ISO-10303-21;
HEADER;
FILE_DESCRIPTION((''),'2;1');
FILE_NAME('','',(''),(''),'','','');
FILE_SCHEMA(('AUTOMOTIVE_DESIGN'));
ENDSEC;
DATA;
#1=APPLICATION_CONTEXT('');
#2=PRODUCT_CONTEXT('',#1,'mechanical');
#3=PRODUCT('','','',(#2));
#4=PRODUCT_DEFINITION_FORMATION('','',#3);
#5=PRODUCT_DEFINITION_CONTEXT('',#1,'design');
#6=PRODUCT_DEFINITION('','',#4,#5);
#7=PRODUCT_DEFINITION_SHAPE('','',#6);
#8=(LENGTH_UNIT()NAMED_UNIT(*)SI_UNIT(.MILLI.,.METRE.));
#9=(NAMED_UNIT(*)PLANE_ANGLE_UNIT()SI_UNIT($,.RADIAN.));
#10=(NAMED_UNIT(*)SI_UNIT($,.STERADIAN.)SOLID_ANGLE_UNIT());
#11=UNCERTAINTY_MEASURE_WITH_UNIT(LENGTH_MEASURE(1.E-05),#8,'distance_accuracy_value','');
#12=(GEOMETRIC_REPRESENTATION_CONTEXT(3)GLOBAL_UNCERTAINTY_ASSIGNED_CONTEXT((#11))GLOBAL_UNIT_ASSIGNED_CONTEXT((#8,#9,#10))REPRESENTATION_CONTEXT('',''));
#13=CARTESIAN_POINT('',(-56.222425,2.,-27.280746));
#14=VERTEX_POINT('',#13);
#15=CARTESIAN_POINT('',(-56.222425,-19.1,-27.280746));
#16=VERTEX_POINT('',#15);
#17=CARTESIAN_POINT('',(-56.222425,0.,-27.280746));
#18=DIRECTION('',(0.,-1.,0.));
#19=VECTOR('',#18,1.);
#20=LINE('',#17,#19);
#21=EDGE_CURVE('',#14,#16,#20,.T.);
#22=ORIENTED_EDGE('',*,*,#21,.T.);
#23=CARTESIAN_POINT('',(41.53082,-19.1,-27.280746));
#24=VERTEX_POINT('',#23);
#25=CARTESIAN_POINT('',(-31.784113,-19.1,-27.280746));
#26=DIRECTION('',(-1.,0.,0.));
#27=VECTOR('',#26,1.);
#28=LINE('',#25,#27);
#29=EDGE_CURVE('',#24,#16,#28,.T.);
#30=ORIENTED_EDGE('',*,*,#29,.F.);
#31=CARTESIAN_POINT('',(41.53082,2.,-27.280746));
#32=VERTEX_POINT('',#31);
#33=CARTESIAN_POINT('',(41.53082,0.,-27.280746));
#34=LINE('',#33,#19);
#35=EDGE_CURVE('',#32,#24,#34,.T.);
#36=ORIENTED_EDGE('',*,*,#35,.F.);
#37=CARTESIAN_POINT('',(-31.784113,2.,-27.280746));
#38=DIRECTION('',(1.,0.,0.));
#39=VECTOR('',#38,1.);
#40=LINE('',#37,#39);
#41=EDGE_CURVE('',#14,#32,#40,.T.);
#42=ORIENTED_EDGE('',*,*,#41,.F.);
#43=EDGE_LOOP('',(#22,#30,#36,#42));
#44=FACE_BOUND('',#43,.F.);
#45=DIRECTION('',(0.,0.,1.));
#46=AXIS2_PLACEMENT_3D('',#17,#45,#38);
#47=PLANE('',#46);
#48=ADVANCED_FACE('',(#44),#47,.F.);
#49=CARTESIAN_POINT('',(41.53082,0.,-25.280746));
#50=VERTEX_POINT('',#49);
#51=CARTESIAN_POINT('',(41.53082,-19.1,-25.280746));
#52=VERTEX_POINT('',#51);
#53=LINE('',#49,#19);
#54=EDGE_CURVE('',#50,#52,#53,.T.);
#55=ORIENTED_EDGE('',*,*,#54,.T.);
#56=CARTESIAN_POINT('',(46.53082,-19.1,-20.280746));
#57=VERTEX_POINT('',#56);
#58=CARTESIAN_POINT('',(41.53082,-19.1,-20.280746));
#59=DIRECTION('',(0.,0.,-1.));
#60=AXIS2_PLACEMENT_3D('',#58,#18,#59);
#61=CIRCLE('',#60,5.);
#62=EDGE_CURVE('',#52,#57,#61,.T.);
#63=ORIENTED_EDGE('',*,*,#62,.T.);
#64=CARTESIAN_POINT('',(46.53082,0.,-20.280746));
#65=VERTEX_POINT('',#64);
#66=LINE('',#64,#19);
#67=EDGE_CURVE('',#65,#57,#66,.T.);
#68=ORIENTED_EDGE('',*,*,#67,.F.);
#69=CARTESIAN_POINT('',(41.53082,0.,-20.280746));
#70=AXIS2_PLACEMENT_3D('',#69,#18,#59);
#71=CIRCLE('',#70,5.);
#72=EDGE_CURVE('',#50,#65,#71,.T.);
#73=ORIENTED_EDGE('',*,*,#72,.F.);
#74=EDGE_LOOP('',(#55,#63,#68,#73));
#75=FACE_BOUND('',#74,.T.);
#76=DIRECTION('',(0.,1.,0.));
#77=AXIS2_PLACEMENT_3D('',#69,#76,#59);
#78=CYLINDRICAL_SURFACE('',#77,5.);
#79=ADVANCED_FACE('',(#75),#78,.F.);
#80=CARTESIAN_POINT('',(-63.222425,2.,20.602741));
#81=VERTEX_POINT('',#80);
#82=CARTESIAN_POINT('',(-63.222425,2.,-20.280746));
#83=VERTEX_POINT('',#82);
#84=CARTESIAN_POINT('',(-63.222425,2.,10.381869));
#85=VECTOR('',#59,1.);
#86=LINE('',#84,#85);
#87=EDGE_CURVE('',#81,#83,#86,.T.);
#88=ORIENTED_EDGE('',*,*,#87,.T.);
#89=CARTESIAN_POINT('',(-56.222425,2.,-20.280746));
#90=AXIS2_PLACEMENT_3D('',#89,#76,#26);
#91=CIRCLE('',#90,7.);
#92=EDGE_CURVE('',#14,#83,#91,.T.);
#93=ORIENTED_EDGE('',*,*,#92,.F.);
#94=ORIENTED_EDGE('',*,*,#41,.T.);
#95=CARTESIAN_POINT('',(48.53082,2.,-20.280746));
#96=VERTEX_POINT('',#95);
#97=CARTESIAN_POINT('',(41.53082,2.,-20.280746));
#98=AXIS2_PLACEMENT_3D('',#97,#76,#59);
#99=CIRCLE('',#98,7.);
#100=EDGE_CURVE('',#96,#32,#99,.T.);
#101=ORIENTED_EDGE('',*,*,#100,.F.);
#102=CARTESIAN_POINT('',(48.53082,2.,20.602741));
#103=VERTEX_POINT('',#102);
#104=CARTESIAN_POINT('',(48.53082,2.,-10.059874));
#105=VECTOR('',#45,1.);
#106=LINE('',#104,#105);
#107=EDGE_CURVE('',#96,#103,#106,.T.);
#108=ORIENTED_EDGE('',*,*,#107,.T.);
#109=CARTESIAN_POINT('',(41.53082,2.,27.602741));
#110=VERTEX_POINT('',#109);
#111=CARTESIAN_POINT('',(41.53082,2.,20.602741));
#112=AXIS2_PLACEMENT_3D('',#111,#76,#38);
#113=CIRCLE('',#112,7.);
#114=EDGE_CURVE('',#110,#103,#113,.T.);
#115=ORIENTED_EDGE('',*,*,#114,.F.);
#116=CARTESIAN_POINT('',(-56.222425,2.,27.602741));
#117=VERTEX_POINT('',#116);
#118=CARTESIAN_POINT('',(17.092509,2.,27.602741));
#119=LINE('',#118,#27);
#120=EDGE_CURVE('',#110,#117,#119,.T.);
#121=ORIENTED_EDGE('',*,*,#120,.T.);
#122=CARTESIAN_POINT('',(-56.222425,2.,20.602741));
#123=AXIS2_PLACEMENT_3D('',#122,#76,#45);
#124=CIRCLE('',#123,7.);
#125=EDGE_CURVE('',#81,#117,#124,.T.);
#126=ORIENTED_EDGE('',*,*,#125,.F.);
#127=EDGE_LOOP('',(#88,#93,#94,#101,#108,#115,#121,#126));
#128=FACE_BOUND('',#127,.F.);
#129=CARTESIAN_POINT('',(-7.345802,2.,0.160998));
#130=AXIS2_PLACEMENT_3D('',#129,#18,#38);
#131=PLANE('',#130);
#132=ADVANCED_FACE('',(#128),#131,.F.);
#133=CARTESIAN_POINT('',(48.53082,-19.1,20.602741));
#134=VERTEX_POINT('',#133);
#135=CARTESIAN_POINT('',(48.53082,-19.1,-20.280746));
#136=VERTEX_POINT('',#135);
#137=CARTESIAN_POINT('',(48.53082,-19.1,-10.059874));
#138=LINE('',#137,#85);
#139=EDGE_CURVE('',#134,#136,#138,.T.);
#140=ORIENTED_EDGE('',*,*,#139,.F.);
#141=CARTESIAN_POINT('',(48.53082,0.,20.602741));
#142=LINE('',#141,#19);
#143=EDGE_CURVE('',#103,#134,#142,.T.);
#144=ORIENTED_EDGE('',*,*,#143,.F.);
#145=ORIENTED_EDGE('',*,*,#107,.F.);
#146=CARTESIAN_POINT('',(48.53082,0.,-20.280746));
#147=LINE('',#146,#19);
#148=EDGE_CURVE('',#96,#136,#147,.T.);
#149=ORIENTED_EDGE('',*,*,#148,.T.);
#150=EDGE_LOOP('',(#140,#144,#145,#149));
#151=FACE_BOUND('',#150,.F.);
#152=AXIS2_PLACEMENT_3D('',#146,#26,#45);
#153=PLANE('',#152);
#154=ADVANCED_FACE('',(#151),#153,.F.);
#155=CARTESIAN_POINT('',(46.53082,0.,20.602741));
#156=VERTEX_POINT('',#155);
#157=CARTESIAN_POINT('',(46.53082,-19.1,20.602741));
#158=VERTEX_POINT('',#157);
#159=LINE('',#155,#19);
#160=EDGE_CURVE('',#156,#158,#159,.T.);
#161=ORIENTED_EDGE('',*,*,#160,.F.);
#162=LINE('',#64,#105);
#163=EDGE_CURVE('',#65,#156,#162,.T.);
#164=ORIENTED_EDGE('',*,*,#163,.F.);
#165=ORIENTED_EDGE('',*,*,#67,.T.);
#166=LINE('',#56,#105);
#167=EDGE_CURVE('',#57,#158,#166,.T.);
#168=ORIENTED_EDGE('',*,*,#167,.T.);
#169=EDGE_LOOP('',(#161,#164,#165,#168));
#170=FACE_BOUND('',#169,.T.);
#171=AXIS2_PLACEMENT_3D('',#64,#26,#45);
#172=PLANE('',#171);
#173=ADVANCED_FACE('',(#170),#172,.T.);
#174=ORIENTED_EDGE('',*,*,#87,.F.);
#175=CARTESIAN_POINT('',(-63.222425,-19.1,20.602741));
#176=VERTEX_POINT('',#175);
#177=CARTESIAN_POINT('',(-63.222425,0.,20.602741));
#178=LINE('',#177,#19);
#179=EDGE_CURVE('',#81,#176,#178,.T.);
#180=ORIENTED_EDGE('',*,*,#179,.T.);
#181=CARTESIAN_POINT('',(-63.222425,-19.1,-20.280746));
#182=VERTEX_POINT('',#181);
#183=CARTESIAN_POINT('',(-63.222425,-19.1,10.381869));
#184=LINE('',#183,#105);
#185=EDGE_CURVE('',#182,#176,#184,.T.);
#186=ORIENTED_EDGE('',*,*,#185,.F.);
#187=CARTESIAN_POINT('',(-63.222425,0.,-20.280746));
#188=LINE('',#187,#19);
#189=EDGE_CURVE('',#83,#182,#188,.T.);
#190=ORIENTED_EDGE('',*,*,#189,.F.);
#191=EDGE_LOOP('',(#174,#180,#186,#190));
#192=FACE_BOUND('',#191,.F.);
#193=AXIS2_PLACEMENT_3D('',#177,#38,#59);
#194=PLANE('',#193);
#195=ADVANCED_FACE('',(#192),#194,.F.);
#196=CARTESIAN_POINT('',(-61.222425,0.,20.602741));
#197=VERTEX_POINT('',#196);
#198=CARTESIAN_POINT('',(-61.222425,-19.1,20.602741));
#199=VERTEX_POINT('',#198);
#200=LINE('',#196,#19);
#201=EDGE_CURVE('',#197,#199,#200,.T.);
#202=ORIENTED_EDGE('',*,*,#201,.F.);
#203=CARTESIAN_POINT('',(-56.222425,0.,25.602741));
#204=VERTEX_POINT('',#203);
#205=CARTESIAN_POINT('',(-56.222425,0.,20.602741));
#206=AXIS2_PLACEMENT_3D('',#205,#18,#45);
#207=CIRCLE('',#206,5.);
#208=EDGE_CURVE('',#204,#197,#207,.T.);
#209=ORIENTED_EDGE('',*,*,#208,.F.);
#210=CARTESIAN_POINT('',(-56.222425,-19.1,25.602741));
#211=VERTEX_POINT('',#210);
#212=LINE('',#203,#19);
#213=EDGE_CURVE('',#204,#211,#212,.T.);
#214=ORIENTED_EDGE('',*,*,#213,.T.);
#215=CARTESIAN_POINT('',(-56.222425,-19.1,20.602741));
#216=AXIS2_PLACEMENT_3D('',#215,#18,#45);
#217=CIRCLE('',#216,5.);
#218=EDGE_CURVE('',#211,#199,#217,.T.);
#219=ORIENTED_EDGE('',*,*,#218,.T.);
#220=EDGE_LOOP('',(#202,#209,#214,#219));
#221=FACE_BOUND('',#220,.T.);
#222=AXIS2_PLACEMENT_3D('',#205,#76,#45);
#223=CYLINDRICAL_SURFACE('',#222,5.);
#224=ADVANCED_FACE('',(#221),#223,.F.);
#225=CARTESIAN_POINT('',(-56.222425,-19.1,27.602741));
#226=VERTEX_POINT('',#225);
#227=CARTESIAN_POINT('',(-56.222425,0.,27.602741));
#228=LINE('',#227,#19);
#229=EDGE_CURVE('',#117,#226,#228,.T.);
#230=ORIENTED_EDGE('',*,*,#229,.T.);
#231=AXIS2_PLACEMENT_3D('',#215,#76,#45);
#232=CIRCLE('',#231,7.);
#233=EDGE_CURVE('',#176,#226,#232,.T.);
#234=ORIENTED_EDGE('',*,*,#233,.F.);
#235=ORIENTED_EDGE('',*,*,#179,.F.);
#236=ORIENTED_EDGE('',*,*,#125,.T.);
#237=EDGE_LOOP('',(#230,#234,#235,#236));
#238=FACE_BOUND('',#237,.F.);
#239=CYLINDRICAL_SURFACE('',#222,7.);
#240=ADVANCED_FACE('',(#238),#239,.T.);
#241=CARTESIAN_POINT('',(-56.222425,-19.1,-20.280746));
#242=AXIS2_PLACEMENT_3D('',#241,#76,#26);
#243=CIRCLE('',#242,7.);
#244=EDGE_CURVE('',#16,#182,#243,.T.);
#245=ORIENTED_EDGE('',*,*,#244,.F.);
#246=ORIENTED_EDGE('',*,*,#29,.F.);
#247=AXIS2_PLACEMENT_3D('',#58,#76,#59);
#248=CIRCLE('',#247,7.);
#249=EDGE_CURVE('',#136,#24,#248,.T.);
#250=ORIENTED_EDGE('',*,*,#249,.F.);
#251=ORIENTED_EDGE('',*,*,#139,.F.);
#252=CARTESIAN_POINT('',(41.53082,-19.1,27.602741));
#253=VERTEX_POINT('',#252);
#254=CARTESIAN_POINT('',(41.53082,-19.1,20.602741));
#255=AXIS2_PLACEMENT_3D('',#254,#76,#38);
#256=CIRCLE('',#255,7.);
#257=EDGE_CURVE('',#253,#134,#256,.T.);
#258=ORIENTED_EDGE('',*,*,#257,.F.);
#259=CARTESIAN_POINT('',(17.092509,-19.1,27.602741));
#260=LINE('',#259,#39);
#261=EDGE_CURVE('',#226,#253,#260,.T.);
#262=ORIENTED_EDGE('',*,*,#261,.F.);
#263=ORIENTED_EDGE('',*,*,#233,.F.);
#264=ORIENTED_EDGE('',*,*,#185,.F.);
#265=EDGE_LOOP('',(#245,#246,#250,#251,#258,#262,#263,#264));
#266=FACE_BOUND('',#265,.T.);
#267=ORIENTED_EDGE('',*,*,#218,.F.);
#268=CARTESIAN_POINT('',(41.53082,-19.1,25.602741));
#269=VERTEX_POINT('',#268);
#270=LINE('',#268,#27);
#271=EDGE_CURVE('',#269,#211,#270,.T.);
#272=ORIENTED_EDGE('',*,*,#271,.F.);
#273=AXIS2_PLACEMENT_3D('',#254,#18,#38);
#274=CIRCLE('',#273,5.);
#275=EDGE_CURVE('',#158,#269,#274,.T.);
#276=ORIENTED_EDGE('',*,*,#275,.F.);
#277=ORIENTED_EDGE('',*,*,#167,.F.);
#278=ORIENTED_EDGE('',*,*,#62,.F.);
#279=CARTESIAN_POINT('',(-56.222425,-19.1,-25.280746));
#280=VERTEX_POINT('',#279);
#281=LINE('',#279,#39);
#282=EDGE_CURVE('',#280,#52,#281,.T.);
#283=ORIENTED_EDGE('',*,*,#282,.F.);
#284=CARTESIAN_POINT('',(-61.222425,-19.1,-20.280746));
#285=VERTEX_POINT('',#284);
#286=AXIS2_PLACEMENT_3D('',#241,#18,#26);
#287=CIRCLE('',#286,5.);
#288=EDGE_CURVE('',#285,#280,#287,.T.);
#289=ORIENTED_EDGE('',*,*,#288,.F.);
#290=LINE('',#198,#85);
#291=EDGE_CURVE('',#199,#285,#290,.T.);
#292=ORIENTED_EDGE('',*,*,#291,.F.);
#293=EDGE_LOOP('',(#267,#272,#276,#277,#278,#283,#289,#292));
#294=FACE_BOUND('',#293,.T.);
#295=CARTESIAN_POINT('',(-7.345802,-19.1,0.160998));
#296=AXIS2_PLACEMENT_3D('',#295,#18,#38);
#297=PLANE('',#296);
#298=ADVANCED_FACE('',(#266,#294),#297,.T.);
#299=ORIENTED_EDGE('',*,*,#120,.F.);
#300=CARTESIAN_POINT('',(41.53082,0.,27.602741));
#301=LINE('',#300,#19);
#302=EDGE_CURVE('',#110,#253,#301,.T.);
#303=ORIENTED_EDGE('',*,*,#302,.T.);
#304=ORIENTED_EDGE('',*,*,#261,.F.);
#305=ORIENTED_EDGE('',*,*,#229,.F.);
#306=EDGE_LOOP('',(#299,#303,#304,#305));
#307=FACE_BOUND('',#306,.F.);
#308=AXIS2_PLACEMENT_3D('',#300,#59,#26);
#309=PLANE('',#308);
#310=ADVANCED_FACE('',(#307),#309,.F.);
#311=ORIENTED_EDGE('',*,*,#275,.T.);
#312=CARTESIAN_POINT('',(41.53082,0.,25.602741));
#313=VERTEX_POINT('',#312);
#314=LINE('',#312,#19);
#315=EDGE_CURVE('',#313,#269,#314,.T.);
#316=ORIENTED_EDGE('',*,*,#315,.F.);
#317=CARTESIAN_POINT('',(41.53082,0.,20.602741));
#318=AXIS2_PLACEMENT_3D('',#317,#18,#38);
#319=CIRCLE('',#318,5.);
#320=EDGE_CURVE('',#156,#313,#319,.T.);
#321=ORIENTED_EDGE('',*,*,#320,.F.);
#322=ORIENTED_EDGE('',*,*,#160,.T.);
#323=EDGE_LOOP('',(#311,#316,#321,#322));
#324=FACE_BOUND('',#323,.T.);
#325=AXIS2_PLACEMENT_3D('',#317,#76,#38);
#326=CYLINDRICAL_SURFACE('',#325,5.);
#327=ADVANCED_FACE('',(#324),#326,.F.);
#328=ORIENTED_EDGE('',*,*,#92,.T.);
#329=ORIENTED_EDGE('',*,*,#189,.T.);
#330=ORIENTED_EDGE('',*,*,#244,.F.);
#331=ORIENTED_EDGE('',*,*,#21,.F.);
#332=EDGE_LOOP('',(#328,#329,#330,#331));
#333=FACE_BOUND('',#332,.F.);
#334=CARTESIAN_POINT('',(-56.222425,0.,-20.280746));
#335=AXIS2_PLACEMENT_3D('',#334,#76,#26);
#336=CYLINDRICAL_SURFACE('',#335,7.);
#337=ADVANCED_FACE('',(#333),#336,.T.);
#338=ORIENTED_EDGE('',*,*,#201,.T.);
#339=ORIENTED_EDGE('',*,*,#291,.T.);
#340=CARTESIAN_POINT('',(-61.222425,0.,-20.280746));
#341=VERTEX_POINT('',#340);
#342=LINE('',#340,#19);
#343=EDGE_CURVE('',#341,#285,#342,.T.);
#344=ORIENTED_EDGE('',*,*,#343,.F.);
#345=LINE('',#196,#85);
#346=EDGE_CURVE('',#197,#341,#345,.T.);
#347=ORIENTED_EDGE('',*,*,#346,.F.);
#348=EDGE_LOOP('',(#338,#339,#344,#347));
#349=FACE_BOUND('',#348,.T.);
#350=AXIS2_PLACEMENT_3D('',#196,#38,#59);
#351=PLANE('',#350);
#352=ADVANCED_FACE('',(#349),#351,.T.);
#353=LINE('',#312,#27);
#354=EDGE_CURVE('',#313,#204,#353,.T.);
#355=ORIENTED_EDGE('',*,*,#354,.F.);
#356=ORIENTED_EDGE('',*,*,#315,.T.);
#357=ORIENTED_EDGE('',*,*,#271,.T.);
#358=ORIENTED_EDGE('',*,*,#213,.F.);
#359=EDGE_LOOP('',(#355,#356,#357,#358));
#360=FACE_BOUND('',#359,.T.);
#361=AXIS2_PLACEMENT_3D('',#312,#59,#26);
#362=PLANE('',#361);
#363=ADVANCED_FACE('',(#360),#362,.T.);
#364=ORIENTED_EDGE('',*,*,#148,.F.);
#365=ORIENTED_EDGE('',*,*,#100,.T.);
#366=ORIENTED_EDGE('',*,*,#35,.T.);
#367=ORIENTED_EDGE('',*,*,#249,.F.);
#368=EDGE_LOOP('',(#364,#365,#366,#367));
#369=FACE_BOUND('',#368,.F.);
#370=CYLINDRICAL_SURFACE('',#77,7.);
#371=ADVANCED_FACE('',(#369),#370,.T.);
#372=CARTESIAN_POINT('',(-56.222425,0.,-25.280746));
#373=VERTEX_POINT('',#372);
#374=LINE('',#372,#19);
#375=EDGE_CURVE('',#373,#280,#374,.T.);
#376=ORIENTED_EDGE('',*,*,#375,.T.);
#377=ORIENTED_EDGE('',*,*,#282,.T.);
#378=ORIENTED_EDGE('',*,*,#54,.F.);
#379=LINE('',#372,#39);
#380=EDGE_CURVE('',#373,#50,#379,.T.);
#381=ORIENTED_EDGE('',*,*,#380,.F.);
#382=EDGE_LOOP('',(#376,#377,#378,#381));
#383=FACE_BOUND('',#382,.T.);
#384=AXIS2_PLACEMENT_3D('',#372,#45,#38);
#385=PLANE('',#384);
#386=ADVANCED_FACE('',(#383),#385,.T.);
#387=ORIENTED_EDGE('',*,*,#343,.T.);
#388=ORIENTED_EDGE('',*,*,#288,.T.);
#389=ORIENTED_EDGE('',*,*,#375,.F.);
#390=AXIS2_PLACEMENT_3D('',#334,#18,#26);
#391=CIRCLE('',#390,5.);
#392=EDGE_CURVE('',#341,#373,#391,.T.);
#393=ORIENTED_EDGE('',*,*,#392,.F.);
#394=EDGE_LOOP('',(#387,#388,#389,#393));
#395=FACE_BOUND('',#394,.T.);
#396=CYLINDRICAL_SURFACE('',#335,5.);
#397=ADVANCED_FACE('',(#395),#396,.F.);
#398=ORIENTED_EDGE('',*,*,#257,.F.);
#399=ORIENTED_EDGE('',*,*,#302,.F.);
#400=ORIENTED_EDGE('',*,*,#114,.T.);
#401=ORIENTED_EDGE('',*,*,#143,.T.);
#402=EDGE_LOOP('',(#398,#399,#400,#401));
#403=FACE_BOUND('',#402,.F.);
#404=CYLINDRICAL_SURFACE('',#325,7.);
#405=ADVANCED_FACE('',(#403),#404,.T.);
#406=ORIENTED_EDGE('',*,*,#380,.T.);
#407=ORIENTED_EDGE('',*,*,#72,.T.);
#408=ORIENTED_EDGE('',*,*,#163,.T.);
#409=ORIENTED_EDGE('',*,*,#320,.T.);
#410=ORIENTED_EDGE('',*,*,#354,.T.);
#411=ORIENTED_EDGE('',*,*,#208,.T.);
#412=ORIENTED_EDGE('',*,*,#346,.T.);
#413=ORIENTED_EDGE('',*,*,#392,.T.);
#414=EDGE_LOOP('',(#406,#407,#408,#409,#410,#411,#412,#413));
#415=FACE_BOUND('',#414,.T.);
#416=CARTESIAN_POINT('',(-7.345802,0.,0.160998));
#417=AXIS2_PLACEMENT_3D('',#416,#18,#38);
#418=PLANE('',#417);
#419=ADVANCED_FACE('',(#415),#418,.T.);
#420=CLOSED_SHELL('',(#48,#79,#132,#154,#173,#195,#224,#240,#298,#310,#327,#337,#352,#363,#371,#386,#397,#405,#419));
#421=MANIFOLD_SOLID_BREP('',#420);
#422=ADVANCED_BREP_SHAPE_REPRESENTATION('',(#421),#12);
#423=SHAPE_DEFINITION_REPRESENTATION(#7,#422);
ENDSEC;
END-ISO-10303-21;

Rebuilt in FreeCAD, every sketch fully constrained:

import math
import FreeCAD as App
import Part
import Sketcher


def faces_at(feature, points):
    """Names of the faces that lie closest to the given points."""
    faces = feature.Shape.Faces
    near = lambda p: min(range(len(faces)), key=lambda i: faces[i].distToShape(Part.Vertex(*p))[0])
    return sorted({f"Face{near(p) + 1}" for p in points})

doc = App.newDocument("Part")
body = doc.addObject("PartDesign::Body", "Body")

# Sketch on XZ plane
sketch1 = body.newObject("Sketcher::SketchObject", "Sketch")
sketch1.AttachmentSupport = (doc.getObject("XZ_Plane"), [""])
sketch1.MapMode = "FlatFace"
sketch1.addGeometry([
    Part.LineSegment(App.Vector(41.53082, 25.602741, 0), App.Vector(-56.222425, 25.602741, 0)),  # 0
    Part.ArcOfCircle(Part.Circle(App.Vector(-56.222425, 20.602741, 0), App.Vector(0, 0, 1), 5), math.radians(90), math.radians(180)),  # 1
    Part.LineSegment(App.Vector(-61.222425, 20.602741, 0), App.Vector(-61.222425, -20.280746, 0)),  # 2
    Part.ArcOfCircle(Part.Circle(App.Vector(-56.222425, -20.280746, 0), App.Vector(0, 0, 1), 5), math.radians(180), math.radians(270)),  # 3
    Part.LineSegment(App.Vector(-56.222425, -25.280746, 0), App.Vector(41.53082, -25.280746, 0)),  # 4
    Part.ArcOfCircle(Part.Circle(App.Vector(41.53082, -20.280746, 0), App.Vector(0, 0, 1), 5), math.radians(-90), math.radians(0)),  # 5
    Part.LineSegment(App.Vector(46.53082, -20.280746, 0), App.Vector(46.53082, 20.602741, 0)),  # 6
    Part.ArcOfCircle(Part.Circle(App.Vector(41.53082, 20.602741, 0), App.Vector(0, 0, 1), 5), math.radians(0), math.radians(90)),  # 7
], False)
sketch1.addConstraint([
    Sketcher.Constraint("Tangent", 0, 2, 1, 1),
    Sketcher.Constraint("Tangent", 1, 2, 2, 1),
    Sketcher.Constraint("Tangent", 2, 2, 3, 1),
    Sketcher.Constraint("Tangent", 3, 2, 4, 1),
    Sketcher.Constraint("Tangent", 4, 2, 5, 1),
    Sketcher.Constraint("Tangent", 5, 2, 6, 1),
    Sketcher.Constraint("Tangent", 6, 2, 7, 1),
    Sketcher.Constraint("Tangent", 7, 2, 0, 1),
    Sketcher.Constraint("Horizontal", 0),
    Sketcher.Constraint("Vertical", 2),
    Sketcher.Constraint("Horizontal", 4),
    Sketcher.Constraint("Vertical", 6),
    Sketcher.Constraint("Equal", 1, 3),
    Sketcher.Constraint("Equal", 3, 5),
    Sketcher.Constraint("Equal", 5, 7),
    Sketcher.Constraint("Radius", 1, 5.0),
    Sketcher.Constraint("DistanceX", 0, 2, 0, 1, 97.753245),
    Sketcher.Constraint("DistanceY", 2, 2, 2, 1, 40.883487),
    Sketcher.Constraint("DistanceY", -1, 1, 1, 3, 20.602741),
    Sketcher.Constraint("DistanceX", -1, 1, 5, 3, 41.53082),
])
pad1 = body.newObject("PartDesign::Pad", "Pad")
pad1.Profile = sketch1
pad1.Length = 19.1
doc.recompute()

thickness = body.newObject("PartDesign::Thickness", "Thickness")
thickness.Base = (pad1, faces_at(pad1, [(-7.346, -19.1, 0.161)]))
thickness.Value = 2
thickness.Reversed = False
thickness.Join = "Intersection"

doc.recompute()
